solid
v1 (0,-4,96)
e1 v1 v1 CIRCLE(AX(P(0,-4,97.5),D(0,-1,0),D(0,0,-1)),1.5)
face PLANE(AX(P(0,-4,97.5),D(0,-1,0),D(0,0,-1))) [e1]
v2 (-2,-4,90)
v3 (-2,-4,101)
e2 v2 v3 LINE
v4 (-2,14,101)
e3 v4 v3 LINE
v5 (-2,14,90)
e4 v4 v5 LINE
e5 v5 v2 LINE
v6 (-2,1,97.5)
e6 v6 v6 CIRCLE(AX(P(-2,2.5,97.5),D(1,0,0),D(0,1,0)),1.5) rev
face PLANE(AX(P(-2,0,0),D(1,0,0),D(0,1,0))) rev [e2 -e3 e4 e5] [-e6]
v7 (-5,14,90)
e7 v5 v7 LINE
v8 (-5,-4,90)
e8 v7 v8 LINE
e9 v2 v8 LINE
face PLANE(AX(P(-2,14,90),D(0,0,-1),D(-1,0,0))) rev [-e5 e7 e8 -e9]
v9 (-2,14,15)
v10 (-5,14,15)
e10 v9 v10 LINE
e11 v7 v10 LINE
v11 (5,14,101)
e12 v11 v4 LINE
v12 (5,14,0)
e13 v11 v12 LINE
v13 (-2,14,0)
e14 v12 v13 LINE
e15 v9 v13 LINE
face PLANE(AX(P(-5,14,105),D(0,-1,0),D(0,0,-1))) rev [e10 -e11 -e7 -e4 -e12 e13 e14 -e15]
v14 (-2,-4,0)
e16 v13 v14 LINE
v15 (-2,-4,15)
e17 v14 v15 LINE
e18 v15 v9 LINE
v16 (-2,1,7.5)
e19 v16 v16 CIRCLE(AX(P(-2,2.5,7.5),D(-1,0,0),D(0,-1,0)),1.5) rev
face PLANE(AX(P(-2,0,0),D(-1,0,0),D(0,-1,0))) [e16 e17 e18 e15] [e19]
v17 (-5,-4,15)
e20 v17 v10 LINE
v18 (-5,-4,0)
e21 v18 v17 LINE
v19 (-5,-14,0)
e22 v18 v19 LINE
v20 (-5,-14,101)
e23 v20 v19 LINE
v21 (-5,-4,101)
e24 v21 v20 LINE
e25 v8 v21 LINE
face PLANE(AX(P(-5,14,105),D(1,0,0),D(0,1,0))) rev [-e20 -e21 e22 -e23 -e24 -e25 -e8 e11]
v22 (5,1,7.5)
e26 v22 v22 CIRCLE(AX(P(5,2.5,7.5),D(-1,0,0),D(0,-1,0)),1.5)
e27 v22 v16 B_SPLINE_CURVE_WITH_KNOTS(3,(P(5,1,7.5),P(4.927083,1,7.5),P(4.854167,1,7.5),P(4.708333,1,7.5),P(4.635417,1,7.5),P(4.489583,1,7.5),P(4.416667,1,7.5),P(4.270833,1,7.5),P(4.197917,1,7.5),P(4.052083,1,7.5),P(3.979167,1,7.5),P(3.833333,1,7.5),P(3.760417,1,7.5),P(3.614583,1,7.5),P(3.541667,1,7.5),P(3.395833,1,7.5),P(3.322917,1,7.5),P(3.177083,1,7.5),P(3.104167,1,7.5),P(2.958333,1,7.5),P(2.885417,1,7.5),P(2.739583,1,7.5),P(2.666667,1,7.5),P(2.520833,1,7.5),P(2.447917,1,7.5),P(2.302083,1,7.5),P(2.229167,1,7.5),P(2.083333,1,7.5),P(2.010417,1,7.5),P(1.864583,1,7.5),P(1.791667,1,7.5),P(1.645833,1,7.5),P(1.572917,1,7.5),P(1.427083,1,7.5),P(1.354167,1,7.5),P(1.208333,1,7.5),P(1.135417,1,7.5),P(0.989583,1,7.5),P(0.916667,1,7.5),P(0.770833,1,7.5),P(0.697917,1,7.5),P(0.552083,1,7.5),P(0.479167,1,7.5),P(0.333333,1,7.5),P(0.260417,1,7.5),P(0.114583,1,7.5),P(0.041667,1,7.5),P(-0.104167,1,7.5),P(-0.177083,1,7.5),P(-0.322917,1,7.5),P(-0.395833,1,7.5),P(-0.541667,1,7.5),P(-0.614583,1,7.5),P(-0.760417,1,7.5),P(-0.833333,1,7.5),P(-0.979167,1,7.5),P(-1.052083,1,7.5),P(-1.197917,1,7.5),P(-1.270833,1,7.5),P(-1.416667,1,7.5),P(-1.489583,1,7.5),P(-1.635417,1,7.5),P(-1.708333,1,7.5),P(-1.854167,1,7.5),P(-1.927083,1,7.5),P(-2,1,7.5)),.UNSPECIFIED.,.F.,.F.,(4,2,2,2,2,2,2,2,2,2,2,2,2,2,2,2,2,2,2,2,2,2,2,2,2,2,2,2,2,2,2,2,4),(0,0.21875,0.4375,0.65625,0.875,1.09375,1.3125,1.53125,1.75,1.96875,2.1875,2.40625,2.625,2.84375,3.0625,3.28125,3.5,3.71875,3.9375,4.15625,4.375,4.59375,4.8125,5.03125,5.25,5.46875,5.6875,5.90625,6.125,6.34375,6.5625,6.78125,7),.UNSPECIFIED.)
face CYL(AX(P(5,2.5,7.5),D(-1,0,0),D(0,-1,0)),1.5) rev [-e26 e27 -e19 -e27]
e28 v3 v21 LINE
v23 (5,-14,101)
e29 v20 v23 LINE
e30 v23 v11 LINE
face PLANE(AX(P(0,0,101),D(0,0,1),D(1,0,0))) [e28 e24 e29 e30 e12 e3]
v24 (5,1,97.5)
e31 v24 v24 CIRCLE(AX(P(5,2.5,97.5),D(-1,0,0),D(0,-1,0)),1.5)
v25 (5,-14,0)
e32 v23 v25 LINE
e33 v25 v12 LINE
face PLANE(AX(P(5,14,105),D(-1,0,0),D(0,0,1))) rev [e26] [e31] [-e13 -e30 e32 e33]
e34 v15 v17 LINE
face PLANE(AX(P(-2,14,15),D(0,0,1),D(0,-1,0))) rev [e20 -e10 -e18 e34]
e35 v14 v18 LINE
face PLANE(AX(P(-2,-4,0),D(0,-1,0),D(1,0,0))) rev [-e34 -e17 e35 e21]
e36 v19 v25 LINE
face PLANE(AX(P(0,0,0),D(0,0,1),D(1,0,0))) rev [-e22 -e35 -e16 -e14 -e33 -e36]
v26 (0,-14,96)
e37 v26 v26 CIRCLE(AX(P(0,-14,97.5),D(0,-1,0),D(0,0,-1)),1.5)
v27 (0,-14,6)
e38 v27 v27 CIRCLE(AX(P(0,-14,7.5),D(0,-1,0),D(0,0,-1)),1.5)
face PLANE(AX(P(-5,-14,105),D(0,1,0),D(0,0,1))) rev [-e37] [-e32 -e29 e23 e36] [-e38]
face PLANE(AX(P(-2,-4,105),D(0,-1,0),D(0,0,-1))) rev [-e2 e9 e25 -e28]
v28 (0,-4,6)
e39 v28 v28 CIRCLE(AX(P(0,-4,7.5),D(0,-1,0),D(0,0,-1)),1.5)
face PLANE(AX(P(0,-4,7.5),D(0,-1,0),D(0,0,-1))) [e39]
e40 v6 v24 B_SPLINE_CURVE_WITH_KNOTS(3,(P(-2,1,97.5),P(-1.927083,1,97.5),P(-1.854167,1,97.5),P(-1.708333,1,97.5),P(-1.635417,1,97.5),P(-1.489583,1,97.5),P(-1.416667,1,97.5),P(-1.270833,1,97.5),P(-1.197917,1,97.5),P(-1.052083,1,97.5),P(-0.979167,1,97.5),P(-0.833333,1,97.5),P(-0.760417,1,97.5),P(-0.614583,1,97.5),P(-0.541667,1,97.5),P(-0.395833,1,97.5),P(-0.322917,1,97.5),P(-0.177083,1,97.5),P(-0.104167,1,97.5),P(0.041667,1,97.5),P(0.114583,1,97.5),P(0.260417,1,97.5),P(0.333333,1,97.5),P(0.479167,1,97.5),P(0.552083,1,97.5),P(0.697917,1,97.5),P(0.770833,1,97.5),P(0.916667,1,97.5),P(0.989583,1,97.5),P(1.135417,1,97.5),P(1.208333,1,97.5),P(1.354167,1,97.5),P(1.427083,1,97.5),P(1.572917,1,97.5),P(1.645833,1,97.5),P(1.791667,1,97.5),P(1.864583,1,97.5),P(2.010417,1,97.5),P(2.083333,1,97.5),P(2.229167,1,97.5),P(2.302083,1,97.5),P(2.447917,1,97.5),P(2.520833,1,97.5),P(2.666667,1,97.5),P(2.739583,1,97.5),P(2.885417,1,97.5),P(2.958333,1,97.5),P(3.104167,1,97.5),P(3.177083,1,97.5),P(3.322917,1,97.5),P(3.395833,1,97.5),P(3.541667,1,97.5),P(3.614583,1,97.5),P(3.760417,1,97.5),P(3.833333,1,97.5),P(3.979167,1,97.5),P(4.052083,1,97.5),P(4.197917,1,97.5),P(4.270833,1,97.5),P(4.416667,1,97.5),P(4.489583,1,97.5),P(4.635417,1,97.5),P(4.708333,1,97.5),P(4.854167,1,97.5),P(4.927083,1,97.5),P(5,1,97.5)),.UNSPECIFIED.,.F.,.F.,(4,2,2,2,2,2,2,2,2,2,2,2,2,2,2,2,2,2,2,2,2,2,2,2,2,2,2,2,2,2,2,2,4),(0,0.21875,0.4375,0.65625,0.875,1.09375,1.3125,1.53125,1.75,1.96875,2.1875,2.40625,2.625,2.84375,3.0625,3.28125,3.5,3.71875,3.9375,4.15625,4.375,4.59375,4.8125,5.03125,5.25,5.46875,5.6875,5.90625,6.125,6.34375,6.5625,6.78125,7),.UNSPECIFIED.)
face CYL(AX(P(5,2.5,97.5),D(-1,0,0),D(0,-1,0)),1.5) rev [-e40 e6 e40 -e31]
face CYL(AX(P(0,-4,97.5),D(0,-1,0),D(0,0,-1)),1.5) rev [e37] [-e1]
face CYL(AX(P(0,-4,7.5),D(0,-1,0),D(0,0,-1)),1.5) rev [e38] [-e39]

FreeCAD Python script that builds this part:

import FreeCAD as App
import Part
import Sketcher
Q = App.Units.Quantity

doc = App.newDocument("Part")
body = doc.addObject("PartDesign::Body", "Body")

sketch1 = doc.addObject("Sketcher::SketchObject", "Sketch")
body.addObject(sketch1)
sketch1.AttachmentSupport = (doc.XY_Plane, [""])
sketch1.MapMode = "FlatFace"
sketch1.addGeometry([
    Part.LineSegment(App.Vector(-5, 14, 0), App.Vector(-5, -14, 0)),
    Part.LineSegment(App.Vector(-5, -14, 0), App.Vector(5, -14, 0)),
    Part.LineSegment(App.Vector(5, -14, 0), App.Vector(5, 14, 0)),
    Part.LineSegment(App.Vector(5, 14, 0), App.Vector(-5, 14, 0)),
], False)
sketch1.addConstraint([
    Sketcher.Constraint("Coincident", 0, 2, 1, 1),
    Sketcher.Constraint("Coincident", 1, 2, 2, 1),
    Sketcher.Constraint("Coincident", 2, 2, 3, 1),
    Sketcher.Constraint("Coincident", 3, 2, 0, 1),
    Sketcher.Constraint("Vertical", 0),
    Sketcher.Constraint("Horizontal", 1),
    Sketcher.Constraint("Vertical", 2),
    Sketcher.Constraint("Horizontal", 3),
    Sketcher.Constraint("Symmetric", 0, 2, 2, 2, -1, 1),
    Sketcher.Constraint("DistanceX", 1, 1, 1, 2, Q("10 mm")),
    Sketcher.Constraint("DistanceY", 0, 2, 0, 1, Q("28 mm")),
])
pad1 = doc.addObject("PartDesign::Pad", "Pad")
body.addObject(pad1)
pad1.Profile = sketch1
pad1.Length = 105

sketch2 = doc.addObject("Sketcher::SketchObject", "Sketch001")
body.addObject(sketch2)
sketch2.AttachmentSupport = (doc.XZ_Plane, [""])
sketch2.MapMode = "FlatFace"
sketch2.AttachmentOffset = App.Placement(App.Vector(0, 0, 14), App.Rotation())
sketch2.addGeometry([
    Part.Circle(App.Vector(0, 97.5, 0), App.Vector(0, 0, 1), 1.5),
    Part.Circle(App.Vector(0, 7.5, 0), App.Vector(0, 0, 1), 1.5),
], False)
sketch2.addConstraint([
    Sketcher.Constraint("Equal", 0, 1),
    Sketcher.Constraint("PointOnObject", 0, 3, -2),
    Sketcher.Constraint("PointOnObject", 1, 3, -2),
    Sketcher.Constraint("Diameter", 0, Q("3 mm")),
    Sketcher.Constraint("DistanceY", 1, 3, 0, 3, Q("90 mm")),
    Sketcher.Constraint("DistanceY", -1, 1, 0, 3, Q("97.5 mm")),
])
pocket1 = doc.addObject("PartDesign::Pocket", "Pocket")
body.addObject(pocket1)
pocket1.Profile = sketch2
pocket1.Length = 10

sketch3 = doc.addObject("Sketcher::SketchObject", "Sketch002")
body.addObject(sketch3)
sketch3.AttachmentSupport = (doc.YZ_Plane, [""])
sketch3.MapMode = "FlatFace"
sketch3.AttachmentOffset = App.Placement(App.Vector(0, 0, -5), App.Rotation())
sketch3.addGeometry([
    Part.Circle(App.Vector(2.5, 7.5, 0), App.Vector(0, 0, 1), 1.5),
    Part.Circle(App.Vector(2.5, 97.5, 0), App.Vector(0, 0, 1), 1.5),
], False)
sketch3.addConstraint([
    Sketcher.Constraint("Equal", 0, 1),
    Sketcher.Constraint("Vertical", 0, 3, 1, 3),
    Sketcher.Constraint("Diameter", 0, Q("3 mm")),
    Sketcher.Constraint("DistanceY", 0, 3, 1, 3, Q("90 mm")),
    Sketcher.Constraint("DistanceX", -1, 1, 0, 3, Q("2.5 mm")),
    Sketcher.Constraint("DistanceY", -1, 1, 0, 3, Q("7.5 mm")),
])
pocket2 = doc.addObject("PartDesign::Pocket", "Pocket001")
body.addObject(pocket2)
pocket2.Profile = sketch3
pocket2.Type = "ThroughAll"
pocket2.Reversed = True

sketch4 = doc.addObject("Sketcher::SketchObject", "Sketch003")
body.addObject(sketch4)
sketch4.AttachmentSupport = (doc.YZ_Plane, [""])
sketch4.MapMode = "FlatFace"
sketch4.AttachmentOffset = App.Placement(App.Vector(0, 0, -5), App.Rotation())
sketch4.addGeometry([
    Part.LineSegment(App.Vector(14, 0, 0), App.Vector(-4, 0, 0)),
    Part.LineSegment(App.Vector(-4, 0, 0), App.Vector(-4, 15, 0)),
    Part.LineSegment(App.Vector(-4, 15, 0), App.Vector(14, 15, 0)),
    Part.LineSegment(App.Vector(14, 15, 0), App.Vector(14, 0, 0)),
    Part.LineSegment(App.Vector(14, 90, 0), App.Vector(-4, 90, 0)),
    Part.LineSegment(App.Vector(-4, 90, 0), App.Vector(-4, 105, 0)),
    Part.LineSegment(App.Vector(-4, 105, 0), App.Vector(14, 105, 0)),
    Part.LineSegment(App.Vector(14, 105, 0), App.Vector(14, 90, 0)),
], False)
sketch4.addConstraint([
    Sketcher.Constraint("Coincident", 0, 2, 1, 1),
    Sketcher.Constraint("Coincident", 1, 2, 2, 1),
    Sketcher.Constraint("Coincident", 2, 2, 3, 1),
    Sketcher.Constraint("Coincident", 3, 2, 0, 1),
    Sketcher.Constraint("Coincident", 4, 2, 5, 1),
    Sketcher.Constraint("Coincident", 5, 2, 6, 1),
    Sketcher.Constraint("Coincident", 6, 2, 7, 1),
    Sketcher.Constraint("Coincident", 7, 2, 4, 1),
    Sketcher.Constraint("Horizontal", 0),
    Sketcher.Constraint("Vertical", 1),
    Sketcher.Constraint("Horizontal", 2),
    Sketcher.Constraint("Vertical", 3),
    Sketcher.Constraint("Horizontal", 4),
    Sketcher.Constraint("Vertical", 5),
    Sketcher.Constraint("Horizontal", 6),
    Sketcher.Constraint("Vertical", 7),
    Sketcher.Constraint("PointOnObject", 0, 2, -1),
    Sketcher.Constraint("Vertical", 1, 2, 4, 2),
    Sketcher.Constraint("Vertical", 3, 2, 6, 2),
    Sketcher.Constraint("Equal", 3, 5),
    Sketcher.Constraint("DistanceX", 0, 2, 0, 1, Q("18 mm")),
    Sketcher.Constraint("DistanceY", 1, 1, 1, 2, Q("15 mm")),
    Sketcher.Constraint("DistanceX", 0, 2, -1, 1, Q("4 mm")),
    Sketcher.Constraint("DistanceY", -1, 1, 4, 2, Q("90 mm")),
])
pocket3 = doc.addObject("PartDesign::Pocket", "Pocket002")
body.addObject(pocket3)
pocket3.Profile = sketch4
pocket3.Length = 3
pocket3.Reversed = True

sketch5 = doc.addObject("Sketcher::SketchObject", "Sketch004")
body.addObject(sketch5)
sketch5.AttachmentSupport = (doc.XY_Plane, [""])
sketch5.MapMode = "FlatFace"
sketch5.AttachmentOffset = App.Placement(App.Vector(0, 0, 105), App.Rotation())
sketch5.addGeometry([
    Part.LineSegment(App.Vector(-9, 17, 0), App.Vector(-9, -17, 0)),
    Part.LineSegment(App.Vector(-9, -17, 0), App.Vector(11, -17, 0)),
    Part.LineSegment(App.Vector(11, -17, 0), App.Vector(11, 17, 0)),
    Part.LineSegment(App.Vector(11, 17, 0), App.Vector(-9, 17, 0)),
], False)
sketch5.addConstraint([
    Sketcher.Constraint("Coincident", 0, 2, 1, 1),
    Sketcher.Constraint("Coincident", 1, 2, 2, 1),
    Sketcher.Constraint("Coincident", 2, 2, 3, 1),
    Sketcher.Constraint("Coincident", 3, 2, 0, 1),
    Sketcher.Constraint("Vertical", 0),
    Sketcher.Constraint("Horizontal", 1),
    Sketcher.Constraint("Vertical", 2),
    Sketcher.Constraint("Horizontal", 3),
    Sketcher.Constraint("DistanceX", 1, 1, 1, 2, Q("19.297403 mm")),
    Sketcher.Constraint("DistanceY", 0, 2, 0, 1, Q("33.931864 mm")),
    Sketcher.Constraint("DistanceY", 0, 2, -1, 1, Q("17.364808 mm")),
    Sketcher.Constraint("DistanceX", -1, 1, 1, 2, Q("10.70683 mm")),
])
pocket4 = doc.addObject("PartDesign::Pocket", "Pocket003")
body.addObject(pocket4)
pocket4.Profile = sketch5
pocket4.Length = 4

doc.recompute()
